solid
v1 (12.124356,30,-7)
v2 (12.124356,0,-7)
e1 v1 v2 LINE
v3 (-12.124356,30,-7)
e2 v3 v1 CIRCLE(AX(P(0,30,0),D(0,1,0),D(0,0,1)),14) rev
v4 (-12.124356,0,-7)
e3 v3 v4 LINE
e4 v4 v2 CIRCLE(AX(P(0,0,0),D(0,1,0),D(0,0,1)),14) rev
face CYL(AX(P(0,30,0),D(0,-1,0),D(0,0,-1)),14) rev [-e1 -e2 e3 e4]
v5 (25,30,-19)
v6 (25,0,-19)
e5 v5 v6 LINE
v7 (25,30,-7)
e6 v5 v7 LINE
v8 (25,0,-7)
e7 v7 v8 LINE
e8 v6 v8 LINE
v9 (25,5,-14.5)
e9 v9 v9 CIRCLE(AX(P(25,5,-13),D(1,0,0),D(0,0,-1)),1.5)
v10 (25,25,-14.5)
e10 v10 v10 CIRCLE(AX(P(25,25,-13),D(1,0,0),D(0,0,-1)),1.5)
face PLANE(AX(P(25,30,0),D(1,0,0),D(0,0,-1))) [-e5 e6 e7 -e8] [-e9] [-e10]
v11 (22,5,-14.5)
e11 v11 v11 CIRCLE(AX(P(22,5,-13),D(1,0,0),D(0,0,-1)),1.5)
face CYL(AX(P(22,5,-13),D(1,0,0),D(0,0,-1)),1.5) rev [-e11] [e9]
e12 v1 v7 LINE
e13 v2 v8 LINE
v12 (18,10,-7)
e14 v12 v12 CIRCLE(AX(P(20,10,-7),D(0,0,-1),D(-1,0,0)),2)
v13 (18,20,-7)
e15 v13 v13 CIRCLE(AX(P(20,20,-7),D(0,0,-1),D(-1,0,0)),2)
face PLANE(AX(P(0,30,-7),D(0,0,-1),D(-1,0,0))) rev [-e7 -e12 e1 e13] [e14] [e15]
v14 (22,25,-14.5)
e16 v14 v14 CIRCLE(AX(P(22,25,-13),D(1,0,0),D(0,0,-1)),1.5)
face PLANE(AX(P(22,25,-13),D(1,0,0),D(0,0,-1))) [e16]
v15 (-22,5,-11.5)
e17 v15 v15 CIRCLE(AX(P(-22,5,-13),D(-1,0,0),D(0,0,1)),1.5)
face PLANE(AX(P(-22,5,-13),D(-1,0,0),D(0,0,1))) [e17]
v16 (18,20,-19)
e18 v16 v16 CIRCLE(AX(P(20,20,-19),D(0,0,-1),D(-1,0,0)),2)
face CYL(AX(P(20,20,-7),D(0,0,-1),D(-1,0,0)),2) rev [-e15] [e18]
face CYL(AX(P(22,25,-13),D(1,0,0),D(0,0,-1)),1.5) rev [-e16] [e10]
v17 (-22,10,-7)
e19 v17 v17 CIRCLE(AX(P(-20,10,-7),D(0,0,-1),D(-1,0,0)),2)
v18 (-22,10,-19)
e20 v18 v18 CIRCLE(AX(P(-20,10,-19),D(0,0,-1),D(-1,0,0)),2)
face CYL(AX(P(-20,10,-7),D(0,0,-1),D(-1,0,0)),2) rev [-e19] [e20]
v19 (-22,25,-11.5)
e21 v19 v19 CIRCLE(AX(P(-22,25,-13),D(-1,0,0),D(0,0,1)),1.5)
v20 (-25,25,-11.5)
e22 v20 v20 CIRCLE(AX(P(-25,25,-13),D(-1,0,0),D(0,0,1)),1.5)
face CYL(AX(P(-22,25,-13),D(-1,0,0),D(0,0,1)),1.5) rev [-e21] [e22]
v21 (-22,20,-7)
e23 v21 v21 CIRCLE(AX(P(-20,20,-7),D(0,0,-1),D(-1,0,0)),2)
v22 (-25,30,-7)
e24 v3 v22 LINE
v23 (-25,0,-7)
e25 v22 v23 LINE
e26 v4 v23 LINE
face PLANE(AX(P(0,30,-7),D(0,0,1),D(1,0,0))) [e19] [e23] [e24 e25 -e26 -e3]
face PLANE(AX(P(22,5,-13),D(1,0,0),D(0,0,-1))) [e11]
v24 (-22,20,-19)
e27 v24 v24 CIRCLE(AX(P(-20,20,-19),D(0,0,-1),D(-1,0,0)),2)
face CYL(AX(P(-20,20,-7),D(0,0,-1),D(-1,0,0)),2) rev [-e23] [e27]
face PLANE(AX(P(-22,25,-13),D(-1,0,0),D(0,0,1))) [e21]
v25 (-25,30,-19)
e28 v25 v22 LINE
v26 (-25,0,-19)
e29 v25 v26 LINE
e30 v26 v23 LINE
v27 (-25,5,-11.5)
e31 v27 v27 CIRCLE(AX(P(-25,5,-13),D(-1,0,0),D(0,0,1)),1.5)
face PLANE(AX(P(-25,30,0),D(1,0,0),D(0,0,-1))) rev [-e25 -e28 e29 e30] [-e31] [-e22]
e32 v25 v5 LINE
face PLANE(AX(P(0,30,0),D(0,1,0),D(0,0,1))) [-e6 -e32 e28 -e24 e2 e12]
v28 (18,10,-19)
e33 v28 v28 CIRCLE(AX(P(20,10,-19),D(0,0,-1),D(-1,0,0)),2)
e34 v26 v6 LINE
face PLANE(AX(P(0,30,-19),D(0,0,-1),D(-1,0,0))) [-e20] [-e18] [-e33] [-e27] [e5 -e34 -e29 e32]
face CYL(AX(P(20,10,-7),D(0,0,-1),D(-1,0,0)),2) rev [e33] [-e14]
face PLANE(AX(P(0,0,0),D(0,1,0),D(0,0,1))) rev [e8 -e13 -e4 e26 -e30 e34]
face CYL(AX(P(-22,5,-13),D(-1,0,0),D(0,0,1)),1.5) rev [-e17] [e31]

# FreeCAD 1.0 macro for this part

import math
import FreeCAD as App
import Part
import Sketcher

V = App.Vector
Q = App.Units.Quantity

doc = App.newDocument("Part")
body = doc.addObject("PartDesign::Body", "Body")

sketch1 = doc.addObject("Sketcher::SketchObject", "Sketch")
body.addObject(sketch1)
sketch1.AttachmentSupport = (doc.XZ_Plane, [""])
sketch1.MapMode = "FlatFace"
sketch1.addGeometry([
    Part.LineSegment(V(-12, -19, 0), V(-12, -7, 0)),
    Part.ArcOfCircle(Part.Circle(V(0, 0, 0), V(0, 0, 1), 14), math.radians(-150), math.radians(-30)),
    Part.LineSegment(V(12, -7, 0), V(12, -19, 0)),
    Part.LineSegment(V(12, -19, 0), V(-12, -19, 0)),
], False)
sketch1.addConstraint([
    Sketcher.Constraint("Coincident", 0, 2, 1, 1),
    Sketcher.Constraint("Coincident", 1, 2, 2, 1),
    Sketcher.Constraint("Coincident", 2, 2, 3, 1),
    Sketcher.Constraint("Coincident", 3, 2, 0, 1),
    Sketcher.Constraint("Vertical", 0),
    Sketcher.Constraint("Vertical", 2),
    Sketcher.Constraint("Horizontal", 3),
    Sketcher.Constraint("Coincident", 1, 3, -1, 1),
    Sketcher.Constraint("Horizontal", 0, 2, 1, 2),
    Sketcher.Constraint("Radius", 1, Q("14 mm")),
    Sketcher.Constraint("DistanceY", 0, 1, 0, 2, Q("12 mm")),
    Sketcher.Constraint("DistanceY", 0, 2, -1, 1, Q("7 mm")),
])
pad1 = doc.addObject("PartDesign::Pad", "Pad")
body.addObject(pad1)
pad1.Profile = sketch1
pad1.Length = 30
pad1.Reversed = True

sketch2 = doc.addObject("Sketcher::SketchObject", "Sketch001")
body.addObject(sketch2)
sketch2.AttachmentSupport = (doc.XZ_Plane, [""])
sketch2.MapMode = "FlatFace"
sketch2.addGeometry([
    Part.LineSegment(V(-25, -19, 0), V(-25, -7, 0)),
    Part.LineSegment(V(-25, -7, 0), V(-12, -7, 0)),
    Part.LineSegment(V(-12, -7, 0), V(-12, -19, 0)),
    Part.LineSegment(V(-12, -19, 0), V(-25, -19, 0)),
    Part.LineSegment(V(12, -19, 0), V(12, -7, 0)),
    Part.LineSegment(V(12, -7, 0), V(25, -7, 0)),
    Part.LineSegment(V(25, -7, 0), V(25, -19, 0)),
    Part.LineSegment(V(25, -19, 0), V(12, -19, 0)),
], False)
sketch2.addConstraint([
    Sketcher.Constraint("Coincident", 0, 2, 1, 1),
    Sketcher.Constraint("Coincident", 1, 2, 2, 1),
    Sketcher.Constraint("Coincident", 2, 2, 3, 1),
    Sketcher.Constraint("Coincident", 3, 2, 0, 1),
    Sketcher.Constraint("Coincident", 4, 2, 5, 1),
    Sketcher.Constraint("Coincident", 5, 2, 6, 1),
    Sketcher.Constraint("Coincident", 6, 2, 7, 1),
    Sketcher.Constraint("Coincident", 7, 2, 4, 1),
    Sketcher.Constraint("Vertical", 0),
    Sketcher.Constraint("Horizontal", 1),
    Sketcher.Constraint("Vertical", 2),
    Sketcher.Constraint("Horizontal", 3),
    Sketcher.Constraint("Vertical", 4),
    Sketcher.Constraint("Horizontal", 5),
    Sketcher.Constraint("Vertical", 6),
    Sketcher.Constraint("Horizontal", 7),
    Sketcher.Constraint("Symmetric", 1, 2, 4, 2, -2),
    Sketcher.Constraint("Symmetric", 3, 2, 6, 2, -2),
    Sketcher.Constraint("DistanceY", 0, 1, 0, 2, Q("12 mm")),
    Sketcher.Constraint("DistanceX", 0, 2, -1, 1, Q("25 mm")),
    Sketcher.Constraint("DistanceY", 0, 2, -1, 1, Q("7 mm")),
    Sketcher.Constraint("DistanceX", 1, 1, 1, 2, Q("12.875644 mm")),
])
pad2 = doc.addObject("PartDesign::Pad", "Pad001")
body.addObject(pad2)
pad2.Profile = sketch2
pad2.Length = 30
pad2.Reversed = True

sketch3 = doc.addObject("Sketcher::SketchObject", "Sketch002")
body.addObject(sketch3)
sketch3.AttachmentSupport = (doc.YZ_Plane, [""])
sketch3.MapMode = "FlatFace"
sketch3.AttachmentOffset = App.Placement(V(0, 0, 25), App.Rotation())
sketch3.addGeometry([
    Part.Circle(V(25, -13, 0), V(0, 0, 1), 1.5),
    Part.Circle(V(5, -13, 0), V(0, 0, 1), 1.5),
], False)
sketch3.addConstraint([
    Sketcher.Constraint("Equal", 0, 1),
    Sketcher.Constraint("Horizontal", 0, 3, 1, 3),
    Sketcher.Constraint("Diameter", 0, Q("3 mm")),
    Sketcher.Constraint("DistanceX", -1, 1, 0, 3, Q("25 mm")),
    Sketcher.Constraint("DistanceY", 0, 3, -1, 1, Q("13 mm")),
    Sketcher.Constraint("DistanceX", -1, 1, 1, 3, Q("5 mm")),
])
pocket1 = doc.addObject("PartDesign::Pocket", "Pocket")
body.addObject(pocket1)
pocket1.Profile = sketch3
pocket1.Length = 3

sketch4 = doc.addObject("Sketcher::SketchObject", "Sketch003")
body.addObject(sketch4)
sketch4.AttachmentSupport = (doc.YZ_Plane, [""])
sketch4.MapMode = "FlatFace"
sketch4.AttachmentOffset = App.Placement(V(0, 0, -25), App.Rotation())
sketch4.addGeometry([
    Part.Circle(V(25, -13, 0), V(0, 0, 1), 1.5),
    Part.Circle(V(5, -13, 0), V(0, 0, 1), 1.5),
], False)
sketch4.addConstraint([
    Sketcher.Constraint("Equal", 0, 1),
    Sketcher.Constraint("Horizontal", 0, 3, 1, 3),
    Sketcher.Constraint("Diameter", 0, Q("3 mm")),
    Sketcher.Constraint("DistanceX", -1, 1, 0, 3, Q("25 mm")),
    Sketcher.Constraint("DistanceY", 0, 3, -1, 1, Q("13 mm")),
    Sketcher.Constraint("DistanceX", -1, 1, 1, 3, Q("5 mm")),
])
pocket2 = doc.addObject("PartDesign::Pocket", "Pocket001")
body.addObject(pocket2)
pocket2.Profile = sketch4
pocket2.Length = 3
pocket2.Reversed = True

sketch5 = doc.addObject("Sketcher::SketchObject", "Sketch004")
body.addObject(sketch5)
sketch5.AttachmentSupport = (doc.XY_Plane, [""])
sketch5.MapMode = "FlatFace"
sketch5.AttachmentOffset = App.Placement(V(0, 0, -19), App.Rotation())
sketch5.addGeometry([
    Part.Circle(V(20, 20, 0), V(0, 0, 1), 2),
    Part.Circle(V(-20, 20, 0), V(0, 0, 1), 2),
    Part.Circle(V(20, 10, 0), V(0, 0, 1), 2),
    Part.Circle(V(-20, 10, 0), V(0, 0, 1), 2),
], False)
sketch5.addConstraint([
    Sketcher.Constraint("Equal", 0, 1),
    Sketcher.Constraint("Equal", 1, 2),
    Sketcher.Constraint("Equal", 2, 3),
    Sketcher.Constraint("Symmetric", 0, 3, 1, 3, -2),
    Sketcher.Constraint("Symmetric", 2, 3, 3, 3, -2),
    Sketcher.Constraint("Vertical", 0, 3, 2, 3),
    Sketcher.Constraint("Diameter", 0, Q("4 mm")),
    Sketcher.Constraint("DistanceX", -1, 1, 0, 3, Q("20 mm")),
    Sketcher.Constraint("DistanceY", -1, 1, 0, 3, Q("20 mm")),
    Sketcher.Constraint("DistanceY", -1, 1, 2, 3, Q("10 mm")),
])
pocket3 = doc.addObject("PartDesign::Pocket", "Pocket002")
body.addObject(pocket3)
pocket3.Profile = sketch5
pocket3.Type = "ThroughAll"
pocket3.Reversed = True

doc.recompute()
